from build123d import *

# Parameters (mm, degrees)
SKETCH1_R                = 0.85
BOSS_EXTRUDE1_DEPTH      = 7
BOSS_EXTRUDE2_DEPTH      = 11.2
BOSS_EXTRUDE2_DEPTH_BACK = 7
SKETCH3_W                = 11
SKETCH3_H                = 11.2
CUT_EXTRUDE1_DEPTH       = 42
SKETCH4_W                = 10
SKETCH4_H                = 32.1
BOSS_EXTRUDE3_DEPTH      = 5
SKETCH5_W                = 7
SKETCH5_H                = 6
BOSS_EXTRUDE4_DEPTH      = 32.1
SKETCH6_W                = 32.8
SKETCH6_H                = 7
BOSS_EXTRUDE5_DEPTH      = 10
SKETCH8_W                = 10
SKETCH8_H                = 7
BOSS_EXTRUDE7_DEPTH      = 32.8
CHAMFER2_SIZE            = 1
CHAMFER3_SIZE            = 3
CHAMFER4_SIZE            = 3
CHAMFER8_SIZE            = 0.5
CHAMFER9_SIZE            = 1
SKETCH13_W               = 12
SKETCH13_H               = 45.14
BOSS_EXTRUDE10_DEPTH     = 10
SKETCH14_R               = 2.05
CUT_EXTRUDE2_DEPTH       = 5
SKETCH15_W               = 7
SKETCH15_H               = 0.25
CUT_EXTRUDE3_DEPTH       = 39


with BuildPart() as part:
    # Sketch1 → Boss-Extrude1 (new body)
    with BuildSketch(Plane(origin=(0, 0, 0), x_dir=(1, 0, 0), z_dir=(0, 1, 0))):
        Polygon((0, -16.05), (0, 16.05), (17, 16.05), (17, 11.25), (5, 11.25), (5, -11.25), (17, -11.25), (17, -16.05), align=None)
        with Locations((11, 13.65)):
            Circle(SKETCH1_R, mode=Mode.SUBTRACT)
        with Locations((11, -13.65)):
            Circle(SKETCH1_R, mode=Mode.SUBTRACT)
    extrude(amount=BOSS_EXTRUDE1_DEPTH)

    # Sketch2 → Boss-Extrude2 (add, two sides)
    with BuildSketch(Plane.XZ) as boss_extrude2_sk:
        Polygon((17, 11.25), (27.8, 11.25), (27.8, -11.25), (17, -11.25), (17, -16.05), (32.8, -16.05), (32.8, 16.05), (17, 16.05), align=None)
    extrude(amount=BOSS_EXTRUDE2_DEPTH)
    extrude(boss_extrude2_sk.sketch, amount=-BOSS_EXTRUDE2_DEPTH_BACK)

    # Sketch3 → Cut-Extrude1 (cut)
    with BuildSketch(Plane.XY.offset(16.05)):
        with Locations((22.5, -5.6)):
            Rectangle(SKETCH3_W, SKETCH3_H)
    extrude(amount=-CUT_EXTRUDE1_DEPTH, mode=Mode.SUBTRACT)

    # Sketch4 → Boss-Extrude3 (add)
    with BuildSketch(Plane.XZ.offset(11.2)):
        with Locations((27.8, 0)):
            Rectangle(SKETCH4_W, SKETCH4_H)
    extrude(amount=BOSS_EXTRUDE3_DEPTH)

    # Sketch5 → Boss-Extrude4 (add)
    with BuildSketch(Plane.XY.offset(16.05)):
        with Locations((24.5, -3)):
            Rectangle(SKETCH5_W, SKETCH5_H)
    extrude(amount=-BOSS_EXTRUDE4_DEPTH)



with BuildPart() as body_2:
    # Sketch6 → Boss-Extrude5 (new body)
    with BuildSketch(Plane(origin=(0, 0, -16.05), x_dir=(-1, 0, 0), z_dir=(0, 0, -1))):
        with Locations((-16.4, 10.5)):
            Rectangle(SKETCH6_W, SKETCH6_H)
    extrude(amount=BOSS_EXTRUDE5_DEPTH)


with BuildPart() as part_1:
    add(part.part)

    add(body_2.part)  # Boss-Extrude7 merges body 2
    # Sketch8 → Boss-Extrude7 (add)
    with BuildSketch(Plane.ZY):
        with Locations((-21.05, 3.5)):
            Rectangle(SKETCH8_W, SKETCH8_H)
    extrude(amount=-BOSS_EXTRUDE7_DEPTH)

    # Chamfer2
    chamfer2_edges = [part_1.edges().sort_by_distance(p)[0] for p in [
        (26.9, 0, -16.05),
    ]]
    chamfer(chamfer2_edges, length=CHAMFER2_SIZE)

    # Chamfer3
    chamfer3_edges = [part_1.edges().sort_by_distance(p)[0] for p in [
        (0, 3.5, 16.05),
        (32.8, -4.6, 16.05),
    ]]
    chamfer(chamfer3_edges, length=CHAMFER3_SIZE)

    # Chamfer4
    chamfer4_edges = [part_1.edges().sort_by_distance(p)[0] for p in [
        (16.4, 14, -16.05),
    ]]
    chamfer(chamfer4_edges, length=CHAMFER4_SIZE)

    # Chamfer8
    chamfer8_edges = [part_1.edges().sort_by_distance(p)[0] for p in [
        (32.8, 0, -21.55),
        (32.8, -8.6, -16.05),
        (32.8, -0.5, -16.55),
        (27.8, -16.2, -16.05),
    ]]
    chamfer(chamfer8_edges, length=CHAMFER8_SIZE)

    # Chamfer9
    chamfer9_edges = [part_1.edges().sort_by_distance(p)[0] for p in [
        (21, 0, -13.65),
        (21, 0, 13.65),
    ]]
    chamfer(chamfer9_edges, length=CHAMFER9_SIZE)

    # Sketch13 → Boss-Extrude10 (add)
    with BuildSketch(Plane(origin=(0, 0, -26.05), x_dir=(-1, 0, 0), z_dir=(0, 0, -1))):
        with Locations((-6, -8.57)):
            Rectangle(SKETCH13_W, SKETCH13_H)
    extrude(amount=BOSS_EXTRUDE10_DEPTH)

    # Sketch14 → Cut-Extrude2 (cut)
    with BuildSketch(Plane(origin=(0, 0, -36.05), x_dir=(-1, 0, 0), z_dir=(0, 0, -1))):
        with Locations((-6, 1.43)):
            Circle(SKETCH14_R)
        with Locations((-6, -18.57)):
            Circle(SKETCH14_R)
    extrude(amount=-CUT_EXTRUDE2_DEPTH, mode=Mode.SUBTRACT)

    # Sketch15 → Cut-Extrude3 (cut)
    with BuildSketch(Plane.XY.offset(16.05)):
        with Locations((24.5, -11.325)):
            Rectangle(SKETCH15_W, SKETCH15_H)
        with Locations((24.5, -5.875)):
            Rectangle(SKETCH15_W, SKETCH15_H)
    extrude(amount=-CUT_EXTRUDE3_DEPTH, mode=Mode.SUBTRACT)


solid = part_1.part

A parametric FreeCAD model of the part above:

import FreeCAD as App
import Part
import Sketcher
from FreeCAD import Vector
Q = App.Units.Quantity


def edges_at(feature, points):
    """Names of the edges that pass closest to the given points."""
    edges = feature.Shape.Edges
    near = lambda p: min(range(len(edges)), key=lambda i: edges[i].distToShape(Part.Vertex(*p))[0])
    return sorted({f"Edge{near(p) + 1}" for p in points})


def add_polygon(sketch, points):
    """Adds a closed chain of lines whose ends are joined by coincident constraints."""
    first, n = sketch.GeometryCount, len(points)
    for a, b in zip(points, points[1:] + points[:1]):
        sketch.addGeometry(Part.LineSegment(App.Vector(*a, 0), App.Vector(*b, 0)), False)
    for i in range(n):
        sketch.addConstraint(Sketcher.Constraint("Coincident", first + i, 2, first + (i + 1) % n, 1))

doc = App.newDocument("Part")
body = doc.addObject("PartDesign::Body", "Body")

sketch1 = doc.addObject("Sketcher::SketchObject", "Sketch")
body.addObject(sketch1)
sketch1.AttachmentSupport = (doc.XZ_Plane, [""])
sketch1.MapMode = "FlatFace"
add_polygon(sketch1, [(0, -16.1), (0, 16.1), (17, 16.1), (17, 11.2), (5, 11.2), (5, -11.2), (17, -11.2), (17, -16.1)])
sketch1.addGeometry(Part.Circle(Vector(11, 13.7, 0), Vector(0, 0, 1), 0.8), False)
sketch1.addGeometry(Part.Circle(Vector(11, -13.7, 0), Vector(0, 0, 1), 0.8), False)
sketch1.addConstraint(Sketcher.Constraint("Vertical", 0))
sketch1.addConstraint(Sketcher.Constraint("Horizontal", 1))
sketch1.addConstraint(Sketcher.Constraint("Vertical", 2))
sketch1.addConstraint(Sketcher.Constraint("Horizontal", 3))
sketch1.addConstraint(Sketcher.Constraint("Vertical", 4))
sketch1.addConstraint(Sketcher.Constraint("Horizontal", 5))
sketch1.addConstraint(Sketcher.Constraint("Vertical", 6))
sketch1.addConstraint(Sketcher.Constraint("Horizontal", 7))
sketch1.addConstraint(Sketcher.Constraint("Equal", 8, 9))
sketch1.addConstraint(Sketcher.Constraint("Symmetric", 0, 2, 7, 2, -1, 1))
sketch1.addConstraint(Sketcher.Constraint("Symmetric", 8, 3, 9, 3, -1))
sketch1.addConstraint(Sketcher.Constraint("Symmetric", 2, 2, 5, 2, -1))
sketch1.addConstraint(Sketcher.Constraint("Diameter", 8, Q("1.7 mm")))
sketch1.addConstraint(Sketcher.Constraint("DistanceX", 1, 1, 1, 2, Q("17 mm")))
sketch1.addConstraint(Sketcher.Constraint("DistanceX", 3, 2, 3, 1, Q("12 mm")))
sketch1.addConstraint(Sketcher.Constraint("DistanceY", 0, 1, 0, 2, Q("32.1 mm")))
sketch1.addConstraint(Sketcher.Constraint("DistanceY", 2, 2, 2, 1, Q("4.8 mm")))
sketch1.addConstraint(Sketcher.Constraint("DistanceX", -1, 1, 8, 3, Q("11 mm")))
sketch1.addConstraint(Sketcher.Constraint("DistanceY", 9, 3, 8, 3, Q("27.3 mm")))
pad1 = doc.addObject("PartDesign::Pad", "Pad")
body.addObject(pad1)
pad1.Profile = sketch1
pad1.Length = 7
pad1.Reversed = True

sketch2 = doc.addObject("Sketcher::SketchObject", "Sketch001")
body.addObject(sketch2)
sketch2.AttachmentSupport = (doc.XZ_Plane, [""])
sketch2.MapMode = "FlatFace"
add_polygon(sketch2, [(17, 11.2), (27.8, 11.2), (27.8, -11.2), (17, -11.2), (17, -16.1), (32.8, -16.1), (32.8, 16.1), (17, 16.1)])
sketch2.addConstraint(Sketcher.Constraint("Horizontal", 0))
sketch2.addConstraint(Sketcher.Constraint("Vertical", 1))
sketch2.addConstraint(Sketcher.Constraint("Horizontal", 2))
sketch2.addConstraint(Sketcher.Constraint("Vertical", 3))
sketch2.addConstraint(Sketcher.Constraint("Horizontal", 4))
sketch2.addConstraint(Sketcher.Constraint("Vertical", 5))
sketch2.addConstraint(Sketcher.Constraint("Horizontal", 6))
sketch2.addConstraint(Sketcher.Constraint("Vertical", 7))
sketch2.addConstraint(Sketcher.Constraint("Symmetric", 3, 2, 6, 2, -1))
sketch2.addConstraint(Sketcher.Constraint("Equal", 3, 7))
sketch2.addConstraint(Sketcher.Constraint("DistanceX", 0, 1, 0, 2, Q("10.8 mm")))
sketch2.addConstraint(Sketcher.Constraint("DistanceX", 4, 1, 4, 2, Q("15.8 mm")))
sketch2.addConstraint(Sketcher.Constraint("DistanceY", 1, 2, 1, 1, Q("22.5 mm")))
sketch2.addConstraint(Sketcher.Constraint("DistanceY", 3, 2, 3, 1, Q("4.8 mm")))
sketch2.addConstraint(Sketcher.Constraint("DistanceX", -1, 1, 2, 2, Q("17 mm")))
pad2 = doc.addObject("PartDesign::Pad", "Pad001")
body.addObject(pad2)
pad2.Profile = sketch2
pad2.Type = "TwoLengths"
pad2.Length = 11.2
pad2.Length2 = 7

sketch3 = doc.addObject("Sketcher::SketchObject", "Sketch002")
body.addObject(sketch3)
sketch3.AttachmentSupport = (doc.XY_Plane, [""])
sketch3.MapMode = "FlatFace"
sketch3.AttachmentOffset = App.Placement(Vector(0, 0, 16.05), App.Rotation())
add_polygon(sketch3, [(17, 0), (17, -11), (28, -11), (28, 0)])
sketch3.addConstraint(Sketcher.Constraint("Vertical", 0))
sketch3.addConstraint(Sketcher.Constraint("Horizontal", 1))
sketch3.addConstraint(Sketcher.Constraint("Vertical", 2))
sketch3.addConstraint(Sketcher.Constraint("Horizontal", 3))
sketch3.addConstraint(Sketcher.Constraint("PointOnObject", 2, 2, -1))
sketch3.addConstraint(Sketcher.Constraint("DistanceX", 1, 1, 1, 2, Q("11 mm")))
sketch3.addConstraint(Sketcher.Constraint("DistanceY", 0, 2, 0, 1, Q("11.2 mm")))
sketch3.addConstraint(Sketcher.Constraint("DistanceX", -1, 1, 0, 2, Q("17 mm")))
pocket1 = doc.addObject("PartDesign::Pocket", "Pocket")
body.addObject(pocket1)
pocket1.Profile = sketch3
pocket1.Length = 42

sketch4 = doc.addObject("Sketcher::SketchObject", "Sketch003")
body.addObject(sketch4)
sketch4.AttachmentSupport = (doc.XZ_Plane, [""])
sketch4.MapMode = "FlatFace"
sketch4.AttachmentOffset = App.Placement(Vector(0, 0, 11.2), App.Rotation())
add_polygon(sketch4, [(23, 16), (23, -16), (33, -16), (33, 16)])
sketch4.addConstraint(Sketcher.Constraint("Vertical", 0))
sketch4.addConstraint(Sketcher.Constraint("Horizontal", 1))
sketch4.addConstraint(Sketcher.Constraint("Vertical", 2))
sketch4.addConstraint(Sketcher.Constraint("Horizontal", 3))
sketch4.addConstraint(Sketcher.Constraint("DistanceX", 1, 1, 1, 2, Q("10 mm")))
sketch4.addConstraint(Sketcher.Constraint("DistanceY", 0, 2, 0, 1, Q("32.1 mm")))
sketch4.addConstraint(Sketcher.Constraint("DistanceX", -1, 1, 0, 2, Q("22.8 mm")))
sketch4.addConstraint(Sketcher.Constraint("DistanceY", 0, 2, -1, 1, Q("16.05 mm")))
pad3 = doc.addObject("PartDesign::Pad", "Pad002")
body.addObject(pad3)
pad3.Profile = sketch4
pad3.Length = 5

sketch5 = doc.addObject("Sketcher::SketchObject", "Sketch004")
body.addObject(sketch5)
sketch5.AttachmentSupport = (doc.XY_Plane, [""])
sketch5.MapMode = "FlatFace"
sketch5.AttachmentOffset = App.Placement(Vector(0, 0, 16.05), App.Rotation())
add_polygon(sketch5, [(21, 0), (21, -6), (28, -6), (28, 0)])
sketch5.addConstraint(Sketcher.Constraint("Vertical", 0))
sketch5.addConstraint(Sketcher.Constraint("Horizontal", 1))
sketch5.addConstraint(Sketcher.Constraint("Vertical", 2))
sketch5.addConstraint(Sketcher.Constraint("Horizontal", 3))
sketch5.addConstraint(Sketcher.Constraint("PointOnObject", 2, 2, -1))
sketch5.addConstraint(Sketcher.Constraint("DistanceX", 1, 1, 1, 2, Q("7 mm")))
sketch5.addConstraint(Sketcher.Constraint("DistanceY", 0, 2, 0, 1, Q("6 mm")))
sketch5.addConstraint(Sketcher.Constraint("DistanceX", -1, 1, 0, 2, Q("21 mm")))
pad4 = doc.addObject("PartDesign::Pad", "Pad003")
body.addObject(pad4)
pad4.Profile = sketch5
pad4.Length = 32.1
pad4.Reversed = True
body2 = doc.addObject("PartDesign::Body", "Body001")

sketch6 = doc.addObject("Sketcher::SketchObject", "Sketch005")
body2.addObject(sketch6)
sketch6.AttachmentSupport = (doc.getObject("XY_Plane001"), [""])
sketch6.MapMode = "FlatFace"
sketch6.AttachmentOffset = App.Placement(Vector(0, 0, -16.05), App.Rotation())
add_polygon(sketch6, [(33, 14), (33, 7), (0, 7), (0, 14)])
sketch6.addConstraint(Sketcher.Constraint("Vertical", 0))
sketch6.addConstraint(Sketcher.Constraint("Horizontal", 1))
sketch6.addConstraint(Sketcher.Constraint("Vertical", 2))
sketch6.addConstraint(Sketcher.Constraint("Horizontal", 3))
sketch6.addConstraint(Sketcher.Constraint("PointOnObject", 1, 2, -2))
sketch6.addConstraint(Sketcher.Constraint("DistanceY", 0, 2, 0, 1, Q("7 mm")))
sketch6.addConstraint(Sketcher.Constraint("DistanceX", 1, 2, 1, 1, Q("32.8 mm")))
sketch6.addConstraint(Sketcher.Constraint("DistanceY", -1, 1, 0, 2, Q("7 mm")))
pad5 = doc.addObject("PartDesign::Pad", "Pad004")
body2.addObject(pad5)
pad5.Profile = sketch6
pad5.Length = 10
pad5.Reversed = True
body.AllowCompound = True
doc.recompute()

boolean = doc.addObject("PartDesign::Boolean", "Boolean")
body.addObject(boolean)
boolean.Type = "Fuse"
boolean.addObjects([body2])

sketch7 = doc.addObject("Sketcher::SketchObject", "Sketch006")
body.addObject(sketch7)
sketch7.AttachmentSupport = (doc.YZ_Plane, [""])
sketch7.MapMode = "FlatFace"
add_polygon(sketch7, [(7, -26), (0, -26), (0, -16), (7, -16)])
sketch7.addConstraint(Sketcher.Constraint("Horizontal", 0))
sketch7.addConstraint(Sketcher.Constraint("Vertical", 1))
sketch7.addConstraint(Sketcher.Constraint("Horizontal", 2))
sketch7.addConstraint(Sketcher.Constraint("Vertical", 3))
sketch7.addConstraint(Sketcher.Constraint("PointOnObject", 0, 2, -2))
sketch7.addConstraint(Sketcher.Constraint("DistanceX", 0, 2, 0, 1, Q("7 mm")))
sketch7.addConstraint(Sketcher.Constraint("DistanceY", 1, 1, 1, 2, Q("10 mm")))
sketch7.addConstraint(Sketcher.Constraint("DistanceY", 0, 2, -1, 1, Q("26.05 mm")))
pad6 = doc.addObject("PartDesign::Pad", "Pad005")
body.addObject(pad6)
pad6.Profile = sketch7
pad6.Length = 32.8
doc.recompute()

chamfer = doc.addObject("PartDesign::Chamfer", "Chamfer")
body.addObject(chamfer)
chamfer.Base = (pad6, edges_at(pad6, [(26.9, 0, -16.05)]))
chamfer.Size = 1
doc.recompute()

chamfer2 = doc.addObject("PartDesign::Chamfer", "Chamfer001")
body.addObject(chamfer2)
chamfer2.Base = (chamfer, edges_at(chamfer, [(0, 3.5, 16.05), (32.8, -4.6, 16.05)]))
chamfer2.Size = 3
doc.recompute()

chamfer3 = doc.addObject("PartDesign::Chamfer", "Chamfer002")
body.addObject(chamfer3)
chamfer3.Base = (chamfer2, edges_at(chamfer2, [(16.4, 14, -16.05)]))
chamfer3.Size = 3
doc.recompute()

chamfer4 = doc.addObject("PartDesign::Chamfer", "Chamfer003")
body.addObject(chamfer4)
chamfer4.Base = (chamfer3, edges_at(chamfer3, [
    (32.8, 0, -21.55),
    (32.8, -8.6, -16.05),
    (32.8, -0.5, -16.55),
    (27.8, -16.2, -16.05),
]))
chamfer4.Size = 0.5
doc.recompute()

chamfer5 = doc.addObject("PartDesign::Chamfer", "Chamfer004")
body.addObject(chamfer5)
chamfer5.Base = (chamfer4, edges_at(chamfer4, [(21, 0, -14.15), (21, 0, 13.65)]))
chamfer5.Size = 1

sketch8 = doc.addObject("Sketcher::SketchObject", "Sketch007")
body.addObject(sketch8)
sketch8.AttachmentSupport = (doc.XY_Plane, [""])
sketch8.MapMode = "FlatFace"
sketch8.AttachmentOffset = App.Placement(Vector(0, 0, -26.05), App.Rotation())
add_polygon(sketch8, [(12, 14), (12, -31), (0, -31), (0, 14)])
sketch8.addConstraint(Sketcher.Constraint("Vertical", 0))
sketch8.addConstraint(Sketcher.Constraint("Horizontal", 1))
sketch8.addConstraint(Sketcher.Constraint("Vertical", 2))
sketch8.addConstraint(Sketcher.Constraint("Horizontal", 3))
sketch8.addConstraint(Sketcher.Constraint("PointOnObject", 1, 2, -2))
sketch8.addConstraint(Sketcher.Constraint("DistanceX", 1, 2, 1, 1, Q("12 mm")))
sketch8.addConstraint(Sketcher.Constraint("DistanceY", -1, 1, 2, 2, Q("14 mm")))
sketch8.addConstraint(Sketcher.Constraint("DistanceY", 0, 2, 0, 1, Q("45.14 mm")))
pad7 = doc.addObject("PartDesign::Pad", "Pad006")
body.addObject(pad7)
pad7.Profile = sketch8
pad7.Length = 10
pad7.Reversed = True

sketch9 = doc.addObject("Sketcher::SketchObject", "Sketch008")
body.addObject(sketch9)
sketch9.AttachmentSupport = (doc.XY_Plane, [""])
sketch9.MapMode = "FlatFace"
sketch9.AttachmentOffset = App.Placement(Vector(0, 0, -36.05), App.Rotation())
sketch9.addGeometry(Part.Circle(Vector(6, 1.4, 0), Vector(0, 0, 1), 2), False)
sketch9.addGeometry(Part.Circle(Vector(6, -18.6, 0), Vector(0, 0, 1), 2), False)
sketch9.addConstraint(Sketcher.Constraint("Equal", 0, 1))
sketch9.addConstraint(Sketcher.Constraint("Vertical", 0, 3, 1, 3))
sketch9.addConstraint(Sketcher.Constraint("Diameter", 0, Q("4.1 mm")))
sketch9.addConstraint(Sketcher.Constraint("DistanceX", -1, 1, 0, 3, Q("6 mm")))
sketch9.addConstraint(Sketcher.Constraint("DistanceY", 1, 3, 0, 3, Q("20 mm")))
sketch9.addConstraint(Sketcher.Constraint("DistanceY", -1, 1, 0, 3, Q("1.43 mm")))
pocket2 = doc.addObject("PartDesign::Pocket", "Pocket001")
body.addObject(pocket2)
pocket2.Profile = sketch9
pocket2.Length = 5
pocket2.Reversed = True

sketch10 = doc.addObject("Sketcher::SketchObject", "Sketch009")
body.addObject(sketch10)
sketch10.AttachmentSupport = (doc.XY_Plane, [""])
sketch10.MapMode = "FlatFace"
sketch10.AttachmentOffset = App.Placement(Vector(0, 0, 16.05), App.Rotation())
add_polygon(sketch10, [(21, -11.2), (21, -11.45), (28, -11.45), (28, -11.2)])
add_polygon(sketch10, [(21, -5.75), (21, -6), (28, -6), (28, -5.75)])
sketch10.addConstraint(Sketcher.Constraint("Vertical", 0))
sketch10.addConstraint(Sketcher.Constraint("Horizontal", 1))
sketch10.addConstraint(Sketcher.Constraint("Vertical", 2))
sketch10.addConstraint(Sketcher.Constraint("Horizontal", 3))
sketch10.addConstraint(Sketcher.Constraint("Vertical", 4))
sketch10.addConstraint(Sketcher.Constraint("Horizontal", 5))
sketch10.addConstraint(Sketcher.Constraint("Vertical", 6))
sketch10.addConstraint(Sketcher.Constraint("Horizontal", 7))
sketch10.addConstraint(Sketcher.Constraint("Vertical", 3, 2, 4, 2))
sketch10.addConstraint(Sketcher.Constraint("Vertical", 2, 2, 5, 2))
sketch10.addConstraint(Sketcher.Constraint("Equal", 2, 4))
sketch10.addConstraint(Sketcher.Constraint("DistanceX", 1, 1, 1, 2, Q("7 mm")))
sketch10.addConstraint(Sketcher.Constraint("DistanceX", -1, 1, 0, 2, Q("21 mm")))
sketch10.addConstraint(Sketcher.Constraint("DistanceY", 4, 2, -1, 1, Q("6 mm")))
sketch10.addConstraint(Sketcher.Constraint("DistanceY", 0, 2, 0, 1, Q("0.25 mm")))
sketch10.addConstraint(Sketcher.Constraint("DistanceY", 2, 2, -1, 1, Q("11.2 mm")))
pocket3 = doc.addObject("PartDesign::Pocket", "Pocket002")
body.addObject(pocket3)
pocket3.Profile = sketch10
pocket3.Length = 39

doc.recompute()
